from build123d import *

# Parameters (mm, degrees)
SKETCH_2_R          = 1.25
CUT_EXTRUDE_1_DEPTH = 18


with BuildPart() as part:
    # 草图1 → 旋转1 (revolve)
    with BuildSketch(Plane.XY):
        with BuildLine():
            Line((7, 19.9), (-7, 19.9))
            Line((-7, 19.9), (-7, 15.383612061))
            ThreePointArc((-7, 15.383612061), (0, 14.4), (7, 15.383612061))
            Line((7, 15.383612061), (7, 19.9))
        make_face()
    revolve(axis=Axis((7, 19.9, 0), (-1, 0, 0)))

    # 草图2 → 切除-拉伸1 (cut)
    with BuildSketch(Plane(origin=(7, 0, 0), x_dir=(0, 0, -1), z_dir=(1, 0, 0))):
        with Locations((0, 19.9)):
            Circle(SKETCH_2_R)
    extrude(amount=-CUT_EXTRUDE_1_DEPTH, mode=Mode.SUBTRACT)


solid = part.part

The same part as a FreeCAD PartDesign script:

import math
import FreeCAD as App
import Part
import Sketcher
from FreeCAD import Vector

doc = App.newDocument("Part")
body = doc.addObject("PartDesign::Body", "Body")

# Sketch on XY plane
sketch1 = body.newObject("Sketcher::SketchObject", "Sketch")
sketch1.AttachmentSupport = (doc.getObject("XY_Plane"), [""])
sketch1.MapMode = "FlatFace"
sketch1.addGeometry(Part.LineSegment(Vector(7, 19.9, 0), Vector(-7, 19.9, 0)), False)
sketch1.addGeometry(Part.LineSegment(Vector(-7, 19.9, 0), Vector(-7, 15.4, 0)), False)
sketch1.addGeometry(Part.ArcOfCircle(Part.Circle(Vector(0, 39.8, 0), Vector(0, 0, 1), 25.4), math.radians(-106), math.radians(-74)), False)
sketch1.addGeometry(Part.LineSegment(Vector(7, 15.4, 0), Vector(7, 19.9, 0)), False)
sketch1.addGeometry(Part.LineSegment(Vector(7, 19.9, 0), Vector(-7, 19.9, 0)), True)  # axis
sketch1.addConstraint(Sketcher.Constraint("Coincident", 0, 2, 1, 1))
sketch1.addConstraint(Sketcher.Constraint("Coincident", 1, 2, 2, 1))
sketch1.addConstraint(Sketcher.Constraint("Coincident", 2, 2, 3, 1))
sketch1.addConstraint(Sketcher.Constraint("Coincident", 3, 2, 0, 1))
sketch1.addConstraint(Sketcher.Constraint("Horizontal", 0))
sketch1.addConstraint(Sketcher.Constraint("Vertical", 1))
sketch1.addConstraint(Sketcher.Constraint("Vertical", 3))
sketch1.addConstraint(Sketcher.Constraint("Horizontal", 4))
sketch1.addConstraint(Sketcher.Constraint("Coincident", 4, 1, 3, 2))
sketch1.addConstraint(Sketcher.Constraint("Symmetric", 1, 2, 2, 2, -2))
sketch1.addConstraint(Sketcher.Constraint("Vertical", 1, 2, 4, 2))
sketch1.addConstraint(Sketcher.Constraint("Radius", 2, 25.4))
sketch1.addConstraint(Sketcher.Constraint("DistanceX", 0, 2, 0, 1, 14.0))
sketch1.addConstraint(Sketcher.Constraint("DistanceY", -1, 1, 2, 3, 39.8))
sketch1.addConstraint(Sketcher.Constraint("DistanceY", -1, 1, 0, 2, 19.9))
revolution = body.newObject("PartDesign::Revolution", "Revolution")
revolution.Profile = sketch1
revolution.ReferenceAxis = (sketch1, ["Axis0"])
revolution.Angle = 360

# Sketch on YZ plane
sketch2 = body.newObject("Sketcher::SketchObject", "Sketch001")
sketch2.AttachmentSupport = (doc.getObject("YZ_Plane"), [""])
sketch2.MapMode = "FlatFace"
sketch2.AttachmentOffset = App.Placement(Vector(0, 0, 7), App.Rotation())
sketch2.addGeometry(Part.Circle(Vector(19.9, 0, 0), Vector(0, 0, 1), 1.2), False)
sketch2.addConstraint(Sketcher.Constraint("PointOnObject", 0, 3, -1))
sketch2.addConstraint(Sketcher.Constraint("Diameter", 0, 2.5))
sketch2.addConstraint(Sketcher.Constraint("DistanceX", -1, 1, 0, 3, 19.9))
pocket1 = body.newObject("PartDesign::Pocket", "Pocket")
pocket1.Profile = sketch2
pocket1.Length = 18

doc.recompute()
